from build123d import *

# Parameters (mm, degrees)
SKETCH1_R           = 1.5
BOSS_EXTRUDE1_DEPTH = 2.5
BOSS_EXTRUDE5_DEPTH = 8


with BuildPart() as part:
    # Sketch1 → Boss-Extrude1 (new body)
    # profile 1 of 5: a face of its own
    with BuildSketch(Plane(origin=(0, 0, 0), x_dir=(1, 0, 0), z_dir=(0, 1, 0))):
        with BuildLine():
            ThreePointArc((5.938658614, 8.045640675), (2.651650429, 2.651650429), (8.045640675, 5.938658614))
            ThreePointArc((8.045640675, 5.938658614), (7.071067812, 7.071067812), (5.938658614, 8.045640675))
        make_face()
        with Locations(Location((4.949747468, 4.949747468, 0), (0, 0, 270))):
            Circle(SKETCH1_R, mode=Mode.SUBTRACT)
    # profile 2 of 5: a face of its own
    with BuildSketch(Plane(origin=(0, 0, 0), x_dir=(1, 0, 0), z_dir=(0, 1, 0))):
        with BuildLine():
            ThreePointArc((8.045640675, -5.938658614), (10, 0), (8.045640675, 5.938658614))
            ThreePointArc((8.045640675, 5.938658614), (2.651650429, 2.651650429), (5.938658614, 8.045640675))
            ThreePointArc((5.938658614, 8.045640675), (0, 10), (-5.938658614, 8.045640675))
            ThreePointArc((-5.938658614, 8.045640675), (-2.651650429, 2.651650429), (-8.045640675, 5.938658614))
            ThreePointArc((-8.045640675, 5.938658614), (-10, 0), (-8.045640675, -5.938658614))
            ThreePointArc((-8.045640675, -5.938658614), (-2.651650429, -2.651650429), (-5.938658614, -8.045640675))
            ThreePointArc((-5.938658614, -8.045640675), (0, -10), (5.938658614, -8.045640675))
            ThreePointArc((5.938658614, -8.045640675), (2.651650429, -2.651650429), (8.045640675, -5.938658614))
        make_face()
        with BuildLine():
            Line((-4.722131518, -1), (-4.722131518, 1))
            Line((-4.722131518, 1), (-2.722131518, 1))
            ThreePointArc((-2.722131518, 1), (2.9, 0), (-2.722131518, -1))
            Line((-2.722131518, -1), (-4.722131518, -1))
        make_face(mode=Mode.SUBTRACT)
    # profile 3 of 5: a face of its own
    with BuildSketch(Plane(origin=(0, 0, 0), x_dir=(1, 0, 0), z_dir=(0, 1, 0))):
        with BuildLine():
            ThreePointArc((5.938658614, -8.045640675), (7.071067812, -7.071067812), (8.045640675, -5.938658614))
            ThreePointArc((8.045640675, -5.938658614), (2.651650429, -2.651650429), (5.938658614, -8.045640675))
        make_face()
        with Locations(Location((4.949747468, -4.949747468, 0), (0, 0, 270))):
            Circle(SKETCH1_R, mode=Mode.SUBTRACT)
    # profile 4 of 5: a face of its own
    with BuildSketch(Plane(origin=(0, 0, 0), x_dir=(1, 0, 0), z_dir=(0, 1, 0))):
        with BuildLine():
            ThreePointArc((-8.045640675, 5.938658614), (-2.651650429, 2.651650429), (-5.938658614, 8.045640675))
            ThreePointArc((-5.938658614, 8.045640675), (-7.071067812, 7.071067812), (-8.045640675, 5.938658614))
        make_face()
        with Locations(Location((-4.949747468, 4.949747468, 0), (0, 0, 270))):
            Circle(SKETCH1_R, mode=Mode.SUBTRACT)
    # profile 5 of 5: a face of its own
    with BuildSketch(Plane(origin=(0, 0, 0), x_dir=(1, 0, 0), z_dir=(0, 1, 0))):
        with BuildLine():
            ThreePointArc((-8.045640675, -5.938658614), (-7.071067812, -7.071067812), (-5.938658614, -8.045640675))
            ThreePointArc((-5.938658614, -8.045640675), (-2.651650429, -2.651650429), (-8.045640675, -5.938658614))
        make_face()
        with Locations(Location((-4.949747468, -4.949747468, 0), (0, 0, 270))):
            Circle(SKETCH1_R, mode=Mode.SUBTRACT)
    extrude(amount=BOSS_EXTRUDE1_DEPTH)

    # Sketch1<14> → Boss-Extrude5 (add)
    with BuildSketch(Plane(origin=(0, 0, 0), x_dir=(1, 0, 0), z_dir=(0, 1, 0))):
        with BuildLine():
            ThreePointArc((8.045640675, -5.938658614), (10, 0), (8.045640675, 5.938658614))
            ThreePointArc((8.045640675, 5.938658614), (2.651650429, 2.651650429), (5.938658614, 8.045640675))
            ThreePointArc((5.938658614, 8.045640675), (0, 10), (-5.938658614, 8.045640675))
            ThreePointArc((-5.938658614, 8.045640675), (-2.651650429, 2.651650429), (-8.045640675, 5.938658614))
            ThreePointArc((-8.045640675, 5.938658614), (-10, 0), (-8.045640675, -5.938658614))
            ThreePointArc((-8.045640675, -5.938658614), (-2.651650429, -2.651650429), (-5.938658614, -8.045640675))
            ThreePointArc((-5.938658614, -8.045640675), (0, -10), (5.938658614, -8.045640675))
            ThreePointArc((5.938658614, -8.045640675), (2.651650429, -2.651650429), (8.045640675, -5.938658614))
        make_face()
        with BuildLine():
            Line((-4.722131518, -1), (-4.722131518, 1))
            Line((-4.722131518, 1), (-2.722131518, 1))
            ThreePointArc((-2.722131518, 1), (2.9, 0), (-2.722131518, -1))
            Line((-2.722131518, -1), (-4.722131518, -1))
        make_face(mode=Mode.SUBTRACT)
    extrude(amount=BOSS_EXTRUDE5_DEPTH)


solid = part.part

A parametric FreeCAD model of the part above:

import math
import FreeCAD as App
import Part
import Sketcher
from FreeCAD import Vector

doc = App.newDocument("Part")
body = doc.addObject("PartDesign::Body", "Body")

# Sketch on XZ plane
sketch1 = body.newObject("Sketcher::SketchObject", "Sketch")
sketch1.AttachmentSupport = (doc.getObject("XZ_Plane"), [""])
sketch1.MapMode = "FlatFace"
sketch1.addGeometry([
    Part.ArcOfCircle(Part.Circle(Vector(0, 0, 0), Vector(0, 0, 1), 10), math.radians(-53.57), math.radians(-36.43)),  # 0
    Part.ArcOfCircle(Part.Circle(Vector(0, 0, 0), Vector(0, 0, 1), 10), math.radians(-126), math.radians(-54)),  # 1
    Part.ArcOfCircle(Part.Circle(Vector(0, 0, 0), Vector(0, 0, 1), 10), math.radians(-143.57), math.radians(-126.43)),  # 2
    Part.ArcOfCircle(Part.Circle(Vector(0, 0, 0), Vector(0, 0, 1), 10), math.radians(144), math.radians(216)),  # 3
    Part.ArcOfCircle(Part.Circle(Vector(0, 0, 0), Vector(0, 0, 1), 10), math.radians(126.43), math.radians(143.57)),  # 4
    Part.ArcOfCircle(Part.Circle(Vector(0, 0, 0), Vector(0, 0, 1), 10), math.radians(54), math.radians(126)),  # 5
    Part.ArcOfCircle(Part.Circle(Vector(0, 0, 0), Vector(0, 0, 1), 10), math.radians(36.43), math.radians(53.57)),  # 6
    Part.ArcOfCircle(Part.Circle(Vector(0, 0, 0), Vector(0, 0, 1), 10), math.radians(-36), math.radians(36)),  # 7
    Part.Circle(Vector(4.9, -4.9, 0), Vector(0, 0, 1), 1.5),  # 8
    Part.LineSegment(Vector(-4.7, 1, 0), Vector(-4.7, -1, 0)),  # 9
    Part.LineSegment(Vector(-4.7, -1, 0), Vector(-2.7, -1, 0)),  # 10
    Part.ArcOfCircle(Part.Circle(Vector(0, 0, 0), Vector(0, 0, 1), 2.9), math.radians(-160), math.radians(160)),  # 11
    Part.LineSegment(Vector(-2.7, 1, 0), Vector(-4.7, 1, 0)),  # 12
    Part.Circle(Vector(4.9, 4.9, 0), Vector(0, 0, 1), 1.5),  # 13
    Part.Circle(Vector(-4.9, 4.9, 0), Vector(0, 0, 1), 1.5),  # 14
    Part.Circle(Vector(-4.9, -4.9, 0), Vector(0, 0, 1), 1.5),  # 15
], False)
sketch1.addConstraint([
    Sketcher.Constraint("Tangent", 0, 1, 1, 2),
    Sketcher.Constraint("Tangent", 1, 1, 2, 2),
    Sketcher.Constraint("Tangent", 2, 1, 3, 2),
    Sketcher.Constraint("Tangent", 3, 1, 4, 2),
    Sketcher.Constraint("Tangent", 4, 1, 5, 2),
    Sketcher.Constraint("Tangent", 5, 1, 6, 2),
    Sketcher.Constraint("Tangent", 6, 1, 7, 2),
    Sketcher.Constraint("Tangent", 7, 1, 0, 2),
    Sketcher.Constraint("Coincident", 9, 2, 10, 1),
    Sketcher.Constraint("Coincident", 10, 2, 11, 1),
    Sketcher.Constraint("Coincident", 11, 2, 12, 1),
    Sketcher.Constraint("Coincident", 12, 2, 9, 1),
    Sketcher.Constraint("Vertical", 9),
    Sketcher.Constraint("Horizontal", 10),
    Sketcher.Constraint("Horizontal", 12),
    Sketcher.Constraint("Coincident", 0, 3, -1, 1),
    Sketcher.Constraint("Coincident", 2, 3, -1, 1),
    Sketcher.Constraint("Coincident", 4, 3, -1, 1),
    Sketcher.Constraint("Coincident", 11, 3, -1, 1),
    Sketcher.Constraint("Equal", 4, 5),
    Sketcher.Constraint("Equal", 8, 13),
    Sketcher.Constraint("Equal", 13, 14),
    Sketcher.Constraint("Equal", 14, 15),
    Sketcher.Constraint("Symmetric", 8, 3, 14, 3, -1, 1),
    Sketcher.Constraint("Symmetric", 13, 3, 15, 3, -1, 1),
    Sketcher.Constraint("Symmetric", 13, 3, 14, 3, -2),
    Sketcher.Constraint("Horizontal", 0, 1, 1, 1),
    Sketcher.Constraint("Horizontal", 4, 1, 5, 1),
    Sketcher.Constraint("Horizontal", 3, 1, 6, 1),
    Sketcher.Constraint("Horizontal", 2, 1, 7, 1),
    Sketcher.Constraint("Vertical", 2, 1, 3, 1),
    Sketcher.Constraint("Vertical", 1, 1, 4, 1),
    Sketcher.Constraint("Vertical", 10, 2, 11, 2),
    Sketcher.Constraint("Equal", 12, 9),
    Sketcher.Constraint("Diameter", 8, 3.0),
    Sketcher.Constraint("Radius", 0, 10.0),
    Sketcher.Constraint("Radius", 11, 2.9),
    Sketcher.Constraint("DistanceX", 10, 1, 10, 2, 2.0),
    Sketcher.Constraint("DistanceX", -1, 1, 0, 1, 5.938659),
    Sketcher.Constraint("DistanceX", 2, 1, -1, 1, 8.045641),
    Sketcher.Constraint("DistanceX", 8, 3, 0, 1, 0.988911),
    Sketcher.Constraint("DistanceY", 2, 1, 15, 3, 0.988911),
])
pad1 = body.newObject("PartDesign::Pad", "Pad")
pad1.Profile = sketch1
pad1.Length = 2.5
pad1.Reversed = True

# Sketch on XZ plane
sketch2 = body.newObject("Sketcher::SketchObject", "Sketch001")
sketch2.AttachmentSupport = (doc.getObject("XZ_Plane"), [""])
sketch2.MapMode = "FlatFace"
sketch2.addGeometry([
    Part.ArcOfCircle(Part.Circle(Vector(0, 0, 0), Vector(0, 0, 1), 10), math.radians(-36), math.radians(36)),  # 0
    Part.ArcOfCircle(Part.Circle(Vector(4.9, -4.9, 0), Vector(0, 0, 1), 3.2), math.radians(-18), math.radians(288)),  # 1
    Part.ArcOfCircle(Part.Circle(Vector(0, 0, 0), Vector(0, 0, 1), 10), math.radians(-126), math.radians(-54)),  # 2
    Part.ArcOfCircle(Part.Circle(Vector(-4.9, -4.9, 0), Vector(0, 0, 1), 3.2), math.radians(-108), math.radians(198)),  # 3
    Part.ArcOfCircle(Part.Circle(Vector(0, 0, 0), Vector(0, 0, 1), 10), math.radians(144), math.radians(216)),  # 4
    Part.ArcOfCircle(Part.Circle(Vector(-4.9, 4.9, 0), Vector(0, 0, 1), 3.2), math.radians(162), math.radians(468)),  # 5
    Part.ArcOfCircle(Part.Circle(Vector(0, 0, 0), Vector(0, 0, 1), 10), math.radians(54), math.radians(126)),  # 6
    Part.ArcOfCircle(Part.Circle(Vector(4.9, 4.9, 0), Vector(0, 0, 1), 3.2), math.radians(72), math.radians(378)),  # 7
    Part.LineSegment(Vector(-2.7, 1, 0), Vector(-4.7, 1, 0)),  # 8
    Part.LineSegment(Vector(-4.7, 1, 0), Vector(-4.7, -1, 0)),  # 9
    Part.LineSegment(Vector(-4.7, -1, 0), Vector(-2.7, -1, 0)),  # 10
    Part.ArcOfCircle(Part.Circle(Vector(0, 0, 0), Vector(0, 0, 1), 2.9), math.radians(-160), math.radians(160)),  # 11
], False)
sketch2.addConstraint([
    Sketcher.Constraint("Coincident", 0, 1, 1, 1),
    Sketcher.Constraint("Coincident", 1, 2, 2, 2),
    Sketcher.Constraint("Coincident", 2, 1, 3, 1),
    Sketcher.Constraint("Coincident", 3, 2, 4, 2),
    Sketcher.Constraint("Coincident", 4, 1, 5, 1),
    Sketcher.Constraint("Coincident", 5, 2, 6, 2),
    Sketcher.Constraint("Coincident", 6, 1, 7, 1),
    Sketcher.Constraint("Coincident", 7, 2, 0, 2),
    Sketcher.Constraint("Coincident", 8, 2, 9, 1),
    Sketcher.Constraint("Coincident", 9, 2, 10, 1),
    Sketcher.Constraint("Coincident", 10, 2, 11, 1),
    Sketcher.Constraint("Coincident", 11, 2, 8, 1),
    Sketcher.Constraint("Horizontal", 8),
    Sketcher.Constraint("Vertical", 9),
    Sketcher.Constraint("Horizontal", 10),
    Sketcher.Constraint("Coincident", 0, 3, -1, 1),
    Sketcher.Constraint("Coincident", 2, 3, -1, 1),
    Sketcher.Constraint("Coincident", 4, 3, -1, 1),
    Sketcher.Constraint("Coincident", 6, 3, -1, 1),
    Sketcher.Constraint("Coincident", 11, 3, -1, 1),
    Sketcher.Constraint("Equal", 0, 2),
    Sketcher.Constraint("Equal", 1, 3),
    Sketcher.Constraint("Equal", 2, 4),
    Sketcher.Constraint("Equal", 3, 5),
    Sketcher.Constraint("Equal", 4, 6),
    Sketcher.Constraint("Equal", 5, 7),
    Sketcher.Constraint("Symmetric", 1, 3, 5, 3, -1, 1),
    Sketcher.Constraint("Symmetric", 3, 3, 7, 3, -1, 1),
    Sketcher.Constraint("Symmetric", 1, 3, 3, 3, -2),
    Sketcher.Constraint("Vertical", 10, 2, 11, 2),
    Sketcher.Constraint("Equal", 10, 9),
    Sketcher.Constraint("Radius", 0, 10.0),
    Sketcher.Constraint("Radius", 11, 2.9),
    Sketcher.Constraint("DistanceX", 8, 2, 8, 1, 2.0),
    Sketcher.Constraint("Radius", 1, 3.25),
    Sketcher.Constraint("DistanceX", -1, 1, 0, 1, 8.045641),
    Sketcher.Constraint("DistanceX", -1, 1, 1, 2, 5.938659),
])
pad2 = body.newObject("PartDesign::Pad", "Pad001")
pad2.Profile = sketch2
pad2.Length = 8
pad2.Reversed = True

doc.recompute()
